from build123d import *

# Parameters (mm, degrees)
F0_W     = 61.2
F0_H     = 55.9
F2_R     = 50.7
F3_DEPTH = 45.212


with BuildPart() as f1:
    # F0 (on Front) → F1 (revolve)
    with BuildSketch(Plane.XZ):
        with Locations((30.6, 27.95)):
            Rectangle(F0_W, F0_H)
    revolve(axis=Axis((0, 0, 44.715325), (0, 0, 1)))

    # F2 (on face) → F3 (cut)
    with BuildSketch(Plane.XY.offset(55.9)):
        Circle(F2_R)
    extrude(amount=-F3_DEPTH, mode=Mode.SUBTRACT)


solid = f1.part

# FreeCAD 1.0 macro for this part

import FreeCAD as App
import Part
import Sketcher
from FreeCAD import Vector

doc = App.newDocument("Part")
body = doc.addObject("PartDesign::Body", "Body")

# Sketch on XZ plane
sketch1 = doc.addObject("Sketcher::SketchObject", "Sketch")
body.addObject(sketch1)
sketch1.AttachmentSupport = (doc.XZ_Plane, [""])
sketch1.MapMode = "FlatFace"
sketch1.addGeometry(Part.LineSegment(Vector(0, 56, 0), Vector(0, 0, 0)), False)
sketch1.addGeometry(Part.LineSegment(Vector(0, 0, 0), Vector(61, 0, 0)), False)
sketch1.addGeometry(Part.LineSegment(Vector(61, 0, 0), Vector(61, 56, 0)), False)
sketch1.addGeometry(Part.LineSegment(Vector(61, 56, 0), Vector(0, 56, 0)), False)
sketch1.addConstraint(Sketcher.Constraint("Coincident", 0, 2, 1, 1))
sketch1.addConstraint(Sketcher.Constraint("Coincident", 1, 2, 2, 1))
sketch1.addConstraint(Sketcher.Constraint("Coincident", 2, 2, 3, 1))
sketch1.addConstraint(Sketcher.Constraint("Coincident", 3, 2, 0, 1))
sketch1.addConstraint(Sketcher.Constraint("Vertical", 0))
sketch1.addConstraint(Sketcher.Constraint("Horizontal", 1))
sketch1.addConstraint(Sketcher.Constraint("Vertical", 2))
sketch1.addConstraint(Sketcher.Constraint("Horizontal", 3))
sketch1.addConstraint(Sketcher.Constraint("Coincident", 0, 2, -1, 1))
sketch1.addConstraint(Sketcher.Constraint("DistanceX", 1, 1, 1, 2, 61.2))
sketch1.addConstraint(Sketcher.Constraint("DistanceY", 0, 2, 0, 1, 55.9))
revolution = doc.addObject("PartDesign::Revolution", "Revolution")
body.addObject(revolution)
revolution.Profile = sketch1
revolution.ReferenceAxis = (sketch1, ["V_Axis"])
revolution.Angle = 360

# Sketch on XY plane
sketch2 = doc.addObject("Sketcher::SketchObject", "Sketch001")
body.addObject(sketch2)
sketch2.AttachmentSupport = (doc.XY_Plane, [""])
sketch2.MapMode = "FlatFace"
sketch2.AttachmentOffset = App.Placement(Vector(0, 0, 55.9), App.Rotation())
sketch2.addGeometry(Part.Circle(Vector(0, 0, 0), Vector(0, 0, 1), 51), False)
sketch2.addConstraint(Sketcher.Constraint("Coincident", 0, 3, -1, 1))
sketch2.addConstraint(Sketcher.Constraint("Diameter", 0, 101.4))
pocket1 = doc.addObject("PartDesign::Pocket", "Pocket")
body.addObject(pocket1)
pocket1.Profile = sketch2
pocket1.Length = 45.212

doc.recompute()
